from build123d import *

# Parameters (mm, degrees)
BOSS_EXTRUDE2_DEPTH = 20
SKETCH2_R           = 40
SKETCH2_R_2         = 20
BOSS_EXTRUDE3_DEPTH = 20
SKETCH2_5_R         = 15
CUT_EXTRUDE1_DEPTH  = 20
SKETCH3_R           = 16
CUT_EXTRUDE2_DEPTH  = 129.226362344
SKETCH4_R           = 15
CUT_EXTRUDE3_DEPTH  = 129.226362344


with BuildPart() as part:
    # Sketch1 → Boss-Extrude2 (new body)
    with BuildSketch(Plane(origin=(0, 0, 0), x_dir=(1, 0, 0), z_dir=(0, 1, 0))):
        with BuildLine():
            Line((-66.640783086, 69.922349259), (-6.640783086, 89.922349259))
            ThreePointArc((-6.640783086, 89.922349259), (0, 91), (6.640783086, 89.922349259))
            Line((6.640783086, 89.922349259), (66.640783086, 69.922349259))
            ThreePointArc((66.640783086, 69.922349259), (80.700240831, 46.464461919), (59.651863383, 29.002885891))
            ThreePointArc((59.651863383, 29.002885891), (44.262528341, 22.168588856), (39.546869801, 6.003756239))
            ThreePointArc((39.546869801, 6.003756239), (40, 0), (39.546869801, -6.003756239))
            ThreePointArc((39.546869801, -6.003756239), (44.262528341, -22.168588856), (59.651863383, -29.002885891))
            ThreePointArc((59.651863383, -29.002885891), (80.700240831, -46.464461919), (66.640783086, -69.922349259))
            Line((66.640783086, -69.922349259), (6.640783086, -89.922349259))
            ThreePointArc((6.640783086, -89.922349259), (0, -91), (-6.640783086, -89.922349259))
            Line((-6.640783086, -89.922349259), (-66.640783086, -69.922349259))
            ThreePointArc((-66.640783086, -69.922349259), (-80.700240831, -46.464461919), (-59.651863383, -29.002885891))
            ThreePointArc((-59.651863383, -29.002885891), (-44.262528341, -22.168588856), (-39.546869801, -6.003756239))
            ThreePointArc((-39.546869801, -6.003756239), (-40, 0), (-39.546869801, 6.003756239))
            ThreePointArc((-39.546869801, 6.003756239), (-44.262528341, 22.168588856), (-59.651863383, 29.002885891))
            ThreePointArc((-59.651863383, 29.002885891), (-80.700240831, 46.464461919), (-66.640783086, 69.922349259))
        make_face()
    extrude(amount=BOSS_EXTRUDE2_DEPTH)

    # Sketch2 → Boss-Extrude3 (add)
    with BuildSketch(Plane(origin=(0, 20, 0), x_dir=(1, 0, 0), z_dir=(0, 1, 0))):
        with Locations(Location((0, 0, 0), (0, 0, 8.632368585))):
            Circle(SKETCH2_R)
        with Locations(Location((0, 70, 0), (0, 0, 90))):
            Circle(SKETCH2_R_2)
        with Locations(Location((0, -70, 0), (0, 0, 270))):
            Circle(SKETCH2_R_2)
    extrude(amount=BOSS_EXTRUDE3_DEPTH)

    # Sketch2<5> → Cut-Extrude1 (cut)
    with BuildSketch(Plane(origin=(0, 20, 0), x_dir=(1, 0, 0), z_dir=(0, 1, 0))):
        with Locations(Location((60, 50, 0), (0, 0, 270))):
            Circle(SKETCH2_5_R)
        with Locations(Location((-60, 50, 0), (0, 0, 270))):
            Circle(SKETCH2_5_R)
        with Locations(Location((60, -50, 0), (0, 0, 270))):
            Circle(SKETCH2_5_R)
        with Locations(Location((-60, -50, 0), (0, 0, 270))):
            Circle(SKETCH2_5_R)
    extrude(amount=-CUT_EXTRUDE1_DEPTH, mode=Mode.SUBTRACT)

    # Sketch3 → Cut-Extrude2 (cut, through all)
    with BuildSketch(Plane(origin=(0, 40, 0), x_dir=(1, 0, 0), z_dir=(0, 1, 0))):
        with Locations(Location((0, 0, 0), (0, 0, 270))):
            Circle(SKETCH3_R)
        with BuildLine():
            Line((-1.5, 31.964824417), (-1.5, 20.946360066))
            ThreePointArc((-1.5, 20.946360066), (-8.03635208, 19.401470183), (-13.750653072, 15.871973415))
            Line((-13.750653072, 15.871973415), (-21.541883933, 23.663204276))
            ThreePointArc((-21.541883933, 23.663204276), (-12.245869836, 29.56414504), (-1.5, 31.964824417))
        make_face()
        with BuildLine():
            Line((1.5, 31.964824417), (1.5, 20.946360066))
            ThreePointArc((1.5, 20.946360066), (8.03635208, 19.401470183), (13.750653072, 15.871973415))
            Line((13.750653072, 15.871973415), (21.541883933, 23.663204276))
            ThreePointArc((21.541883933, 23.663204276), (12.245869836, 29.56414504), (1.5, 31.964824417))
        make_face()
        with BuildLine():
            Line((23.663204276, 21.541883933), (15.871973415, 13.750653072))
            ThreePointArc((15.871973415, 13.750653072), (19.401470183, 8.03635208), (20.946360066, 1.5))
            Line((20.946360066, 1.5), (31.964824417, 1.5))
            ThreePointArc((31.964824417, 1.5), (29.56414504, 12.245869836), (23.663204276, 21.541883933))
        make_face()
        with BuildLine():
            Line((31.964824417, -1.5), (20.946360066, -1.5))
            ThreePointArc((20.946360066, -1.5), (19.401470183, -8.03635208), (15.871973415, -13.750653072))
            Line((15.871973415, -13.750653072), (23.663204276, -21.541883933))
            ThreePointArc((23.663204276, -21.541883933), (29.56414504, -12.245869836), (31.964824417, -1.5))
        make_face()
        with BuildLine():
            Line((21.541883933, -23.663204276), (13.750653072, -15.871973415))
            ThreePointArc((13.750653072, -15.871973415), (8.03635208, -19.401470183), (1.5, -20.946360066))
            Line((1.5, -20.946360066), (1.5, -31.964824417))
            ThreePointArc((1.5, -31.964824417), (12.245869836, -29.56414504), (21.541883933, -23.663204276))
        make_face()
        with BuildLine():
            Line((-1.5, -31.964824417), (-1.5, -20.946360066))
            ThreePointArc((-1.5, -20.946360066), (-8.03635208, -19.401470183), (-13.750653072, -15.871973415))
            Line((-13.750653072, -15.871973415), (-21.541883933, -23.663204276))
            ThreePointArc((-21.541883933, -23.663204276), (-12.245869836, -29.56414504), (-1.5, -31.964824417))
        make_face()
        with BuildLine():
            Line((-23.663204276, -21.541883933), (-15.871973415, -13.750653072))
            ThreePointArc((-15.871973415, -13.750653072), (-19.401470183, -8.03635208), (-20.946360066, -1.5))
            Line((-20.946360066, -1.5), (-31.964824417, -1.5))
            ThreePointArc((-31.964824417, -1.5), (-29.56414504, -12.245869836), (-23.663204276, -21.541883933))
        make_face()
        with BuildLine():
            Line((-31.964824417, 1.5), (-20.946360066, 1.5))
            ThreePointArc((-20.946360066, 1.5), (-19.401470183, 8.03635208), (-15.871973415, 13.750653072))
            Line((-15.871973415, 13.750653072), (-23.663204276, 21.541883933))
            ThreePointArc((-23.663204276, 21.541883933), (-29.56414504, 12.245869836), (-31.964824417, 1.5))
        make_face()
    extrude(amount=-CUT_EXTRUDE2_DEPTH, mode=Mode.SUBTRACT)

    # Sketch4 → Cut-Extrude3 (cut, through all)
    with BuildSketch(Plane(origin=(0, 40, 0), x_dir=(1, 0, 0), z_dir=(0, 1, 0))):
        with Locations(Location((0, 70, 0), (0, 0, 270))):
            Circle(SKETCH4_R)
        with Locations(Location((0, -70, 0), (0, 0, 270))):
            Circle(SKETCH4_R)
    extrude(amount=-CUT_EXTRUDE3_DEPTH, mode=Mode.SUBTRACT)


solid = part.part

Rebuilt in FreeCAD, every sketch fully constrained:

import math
import FreeCAD as App
import Part
import Sketcher

doc = App.newDocument("Part")
body = doc.addObject("PartDesign::Body", "Body")

sketch1 = body.newObject("Sketcher::SketchObject", "Sketch")
sketch1.AttachmentSupport = (doc.getObject("XZ_Plane"), [""])
sketch1.MapMode = "FlatFace"
sketch1.addGeometry([
    Part.LineSegment(App.Vector(-6.640783, -89.922349, 0), App.Vector(-66.640783, -69.922349, 0)),
    Part.ArcOfCircle(Part.Circle(App.Vector(-60, -50, 0), App.Vector(0, 0, 1), 21), math.radians(89.050111), math.radians(251.565051)),
    Part.ArcOfCircle(Part.Circle(App.Vector(-59.320305, -9.005634, 0), App.Vector(0, 0, 1), 20), math.radians(-90.949889), math.radians(8.632369)),
    Part.ArcOfCircle(Part.Circle(App.Vector(0, 0, 0), App.Vector(0, 0, 1), 40), math.radians(171.367631), math.radians(188.632369)),
    Part.ArcOfCircle(Part.Circle(App.Vector(-59.320305, 9.005634, 0), App.Vector(0, 0, 1), 20), math.radians(-8.632369), math.radians(90.949889)),
    Part.ArcOfCircle(Part.Circle(App.Vector(-60, 50, 0), App.Vector(0, 0, 1), 21), math.radians(108.434949), math.radians(270.949889)),
    Part.LineSegment(App.Vector(-66.640783, 69.922349, 0), App.Vector(-6.640783, 89.922349, 0)),
    Part.ArcOfCircle(Part.Circle(App.Vector(0, 70, 0), App.Vector(0, 0, 1), 21), math.radians(71.565051), math.radians(108.434949)),
    Part.LineSegment(App.Vector(6.640783, 89.922349, 0), App.Vector(66.640783, 69.922349, 0)),
    Part.ArcOfCircle(Part.Circle(App.Vector(60, 50, 0), App.Vector(0, 0, 1), 21), math.radians(-90.949889), math.radians(71.565051)),
    Part.ArcOfCircle(Part.Circle(App.Vector(59.320305, 9.005634, 0), App.Vector(0, 0, 1), 20), math.radians(89.050111), math.radians(188.632369)),
    Part.ArcOfCircle(Part.Circle(App.Vector(0, 0, 0), App.Vector(0, 0, 1), 40), math.radians(-8.632369), math.radians(8.632369)),
    Part.ArcOfCircle(Part.Circle(App.Vector(59.320305, -9.005634, 0), App.Vector(0, 0, 1), 20), math.radians(171.367631), math.radians(270.949889)),
    Part.ArcOfCircle(Part.Circle(App.Vector(60, -50, 0), App.Vector(0, 0, 1), 21), math.radians(-71.565051), math.radians(90.949889)),
    Part.LineSegment(App.Vector(66.640783, -69.922349, 0), App.Vector(6.640783, -89.922349, 0)),
    Part.ArcOfCircle(Part.Circle(App.Vector(0, -70, 0), App.Vector(0, 0, 1), 21), math.radians(-108.434949), math.radians(-71.565051)),
], False)
sketch1.addConstraint([
    Sketcher.Constraint("Tangent", 0, 2, 1, 2),
    Sketcher.Constraint("Tangent", 1, 1, 2, 1),
    Sketcher.Constraint("Tangent", 2, 2, 3, 2),
    Sketcher.Constraint("Tangent", 3, 1, 4, 1),
    Sketcher.Constraint("Tangent", 4, 2, 5, 2),
    Sketcher.Constraint("Tangent", 5, 1, 6, 1),
    Sketcher.Constraint("Tangent", 6, 2, 7, 2),
    Sketcher.Constraint("Tangent", 7, 1, 8, 1),
    Sketcher.Constraint("Tangent", 8, 2, 9, 2),
    Sketcher.Constraint("Tangent", 9, 1, 10, 1),
    Sketcher.Constraint("Tangent", 10, 2, 11, 2),
    Sketcher.Constraint("Tangent", 11, 1, 12, 1),
    Sketcher.Constraint("Tangent", 12, 2, 13, 2),
    Sketcher.Constraint("Tangent", 13, 1, 14, 1),
    Sketcher.Constraint("Tangent", 14, 2, 15, 2),
    Sketcher.Constraint("Tangent", 15, 1, 0, 1),
    Sketcher.Constraint("Coincident", 3, 3, -1, 1),
    Sketcher.Constraint("Coincident", 11, 3, -1, 1),
    Sketcher.Constraint("Equal", 2, 4),
    Sketcher.Constraint("Equal", 1, 5),
    Sketcher.Constraint("Equal", 5, 7),
    Sketcher.Constraint("Equal", 7, 9),
    Sketcher.Constraint("Equal", 4, 10),
    Sketcher.Constraint("Equal", 3, 11),
    Sketcher.Constraint("Equal", 10, 12),
    Sketcher.Constraint("Equal", 9, 13),
    Sketcher.Constraint("Equal", 13, 15),
    Sketcher.Constraint("Symmetric", 1, 3, 9, 3, -1, 1),
    Sketcher.Constraint("Symmetric", 5, 3, 13, 3, -1, 1),
    Sketcher.Constraint("Symmetric", 7, 3, 15, 3, -1, 1),
    Sketcher.Constraint("Symmetric", 5, 3, 9, 3, -2),
    Sketcher.Constraint("PointOnObject", 7, 3, -2),
    Sketcher.Constraint("Radius", 1, 21.0),
    Sketcher.Constraint("Radius", 2, 20.0),
    Sketcher.Constraint("Radius", 3, 40.0),
    Sketcher.Constraint("DistanceX", 1, 3, -1, 1, 60.0),
    Sketcher.Constraint("DistanceY", 1, 3, -1, 1, 50.0),
    Sketcher.Constraint("DistanceY", -1, 1, 7, 3, 70.0),
])
pad1 = body.newObject("PartDesign::Pad", "Pad")
pad1.Profile = sketch1
pad1.Length = 20
pad1.Reversed = True

sketch2 = body.newObject("Sketcher::SketchObject", "Sketch001")
sketch2.AttachmentSupport = (doc.getObject("XZ_Plane"), [""])
sketch2.MapMode = "FlatFace"
sketch2.AttachmentOffset = App.Placement(App.Vector(0, 0, -20), App.Rotation())
sketch2.addGeometry([
    Part.Circle(App.Vector(0, 0, 0), App.Vector(0, 0, 1), 40),
    Part.Circle(App.Vector(0, -70, 0), App.Vector(0, 0, 1), 20),
    Part.Circle(App.Vector(0, 70, 0), App.Vector(0, 0, 1), 20),
], False)
sketch2.addConstraint([
    Sketcher.Constraint("Coincident", 0, 3, -1, 1),
    Sketcher.Constraint("Equal", 1, 2),
    Sketcher.Constraint("Symmetric", 1, 3, 2, 3, -1, 1),
    Sketcher.Constraint("PointOnObject", 1, 3, -2),
    Sketcher.Constraint("Diameter", 0, 80.0),
    Sketcher.Constraint("Diameter", 1, 40.0),
    Sketcher.Constraint("DistanceY", 1, 3, -1, 1, 70.0),
])
pad2 = body.newObject("PartDesign::Pad", "Pad001")
pad2.Profile = sketch2
pad2.Length = 20
pad2.Reversed = True

sketch3 = body.newObject("Sketcher::SketchObject", "Sketch002")
sketch3.AttachmentSupport = (doc.getObject("XZ_Plane"), [""])
sketch3.MapMode = "FlatFace"
sketch3.AttachmentOffset = App.Placement(App.Vector(0, 0, -20), App.Rotation())
sketch3.addGeometry([
    Part.Circle(App.Vector(60, -50, 0), App.Vector(0, 0, 1), 15),
    Part.Circle(App.Vector(-60, -50, 0), App.Vector(0, 0, 1), 15),
    Part.Circle(App.Vector(60, 50, 0), App.Vector(0, 0, 1), 15),
    Part.Circle(App.Vector(-60, 50, 0), App.Vector(0, 0, 1), 15),
], False)
sketch3.addConstraint([
    Sketcher.Constraint("Equal", 0, 1),
    Sketcher.Constraint("Equal", 1, 2),
    Sketcher.Constraint("Equal", 2, 3),
    Sketcher.Constraint("Symmetric", 1, 3, 2, 3, -1, 1),
    Sketcher.Constraint("Symmetric", 0, 3, 3, 3, -1, 1),
    Sketcher.Constraint("Symmetric", 0, 3, 1, 3, -2),
    Sketcher.Constraint("Diameter", 0, 30.0),
    Sketcher.Constraint("DistanceX", -1, 1, 0, 3, 60.0),
    Sketcher.Constraint("DistanceY", 0, 3, -1, 1, 50.0),
])
pocket1 = body.newObject("PartDesign::Pocket", "Pocket")
pocket1.Profile = sketch3
pocket1.Length = 20
pocket1.Reversed = True

sketch4 = body.newObject("Sketcher::SketchObject", "Sketch003")
sketch4.AttachmentSupport = (doc.getObject("XZ_Plane"), [""])
sketch4.MapMode = "FlatFace"
sketch4.AttachmentOffset = App.Placement(App.Vector(0, 0, -40), App.Rotation())
sketch4.addGeometry([
    Part.Circle(App.Vector(0, 0, 0), App.Vector(0, 0, 1), 16),
    Part.LineSegment(App.Vector(-1.5, -20.94636, 0), App.Vector(-1.5, -31.964824, 0)),
    Part.ArcOfCircle(Part.Circle(App.Vector(0, 0, 0), App.Vector(0, 0, 1), 32), math.radians(-132.313276), math.radians(-92.686724)),
    Part.LineSegment(App.Vector(-21.541884, -23.663204, 0), App.Vector(-13.750653, -15.871973, 0)),
    Part.ArcOfCircle(Part.Circle(App.Vector(0, 0, 0), App.Vector(0, 0, 1), 21), math.radians(-130.903956), math.radians(-94.096044)),
    Part.LineSegment(App.Vector(1.5, -31.964824, 0), App.Vector(1.5, -20.94636, 0)),
    Part.ArcOfCircle(Part.Circle(App.Vector(0, 0, 0), App.Vector(0, 0, 1), 21), math.radians(-85.903956), math.radians(-49.096044)),
    Part.LineSegment(App.Vector(13.750653, -15.871973, 0), App.Vector(21.541884, -23.663204, 0)),
    Part.ArcOfCircle(Part.Circle(App.Vector(0, 0, 0), App.Vector(0, 0, 1), 32), math.radians(-87.313276), math.radians(-47.686724)),
    Part.LineSegment(App.Vector(23.663204, -21.541884, 0), App.Vector(15.871973, -13.750653, 0)),
    Part.ArcOfCircle(Part.Circle(App.Vector(0, 0, 0), App.Vector(0, 0, 1), 21), math.radians(-40.903956), math.radians(-4.096044)),
    Part.LineSegment(App.Vector(20.94636, -1.5, 0), App.Vector(31.964824, -1.5, 0)),
    Part.ArcOfCircle(Part.Circle(App.Vector(0, 0, 0), App.Vector(0, 0, 1), 32), math.radians(-42.313276), math.radians(-2.686724)),
    Part.LineSegment(App.Vector(31.964824, 1.5, 0), App.Vector(20.94636, 1.5, 0)),
    Part.ArcOfCircle(Part.Circle(App.Vector(0, 0, 0), App.Vector(0, 0, 1), 21), math.radians(4.096044), math.radians(40.903956)),
    Part.LineSegment(App.Vector(15.871973, 13.750653, 0), App.Vector(23.663204, 21.541884, 0)),
    Part.ArcOfCircle(Part.Circle(App.Vector(0, 0, 0), App.Vector(0, 0, 1), 32), math.radians(2.686724), math.radians(42.313276)),
    Part.LineSegment(App.Vector(21.541884, 23.663204, 0), App.Vector(13.750653, 15.871973, 0)),
    Part.ArcOfCircle(Part.Circle(App.Vector(0, 0, 0), App.Vector(0, 0, 1), 21), math.radians(49.096044), math.radians(85.903956)),
    Part.LineSegment(App.Vector(1.5, 20.94636, 0), App.Vector(1.5, 31.964824, 0)),
    Part.ArcOfCircle(Part.Circle(App.Vector(0, 0, 0), App.Vector(0, 0, 1), 32), math.radians(47.686724), math.radians(87.313276)),
    Part.LineSegment(App.Vector(-1.5, 31.964824, 0), App.Vector(-1.5, 20.94636, 0)),
    Part.ArcOfCircle(Part.Circle(App.Vector(0, 0, 0), App.Vector(0, 0, 1), 21), math.radians(94.096044), math.radians(130.903956)),
    Part.LineSegment(App.Vector(-13.750653, 15.871973, 0), App.Vector(-21.541884, 23.663204, 0)),
    Part.ArcOfCircle(Part.Circle(App.Vector(0, 0, 0), App.Vector(0, 0, 1), 32), math.radians(92.686724), math.radians(132.313276)),
    Part.LineSegment(App.Vector(-23.663204, 21.541884, 0), App.Vector(-15.871973, 13.750653, 0)),
    Part.ArcOfCircle(Part.Circle(App.Vector(0, 0, 0), App.Vector(0, 0, 1), 21), math.radians(139.096044), math.radians(175.903956)),
    Part.LineSegment(App.Vector(-20.94636, 1.5, 0), App.Vector(-31.964824, 1.5, 0)),
    Part.ArcOfCircle(Part.Circle(App.Vector(0, 0, 0), App.Vector(0, 0, 1), 32), math.radians(137.686724), math.radians(177.313276)),
    Part.LineSegment(App.Vector(-31.964824, -1.5, 0), App.Vector(-20.94636, -1.5, 0)),
    Part.ArcOfCircle(Part.Circle(App.Vector(0, 0, 0), App.Vector(0, 0, 1), 21), math.radians(-175.903956), math.radians(-139.096044)),
    Part.LineSegment(App.Vector(-15.871973, -13.750653, 0), App.Vector(-23.663204, -21.541884, 0)),
    Part.ArcOfCircle(Part.Circle(App.Vector(0, 0, 0), App.Vector(0, 0, 1), 32), math.radians(-177.313276), math.radians(-137.686724)),
], False)
sketch4.addConstraint([
    Sketcher.Constraint("Coincident", 1, 2, 2, 2),
    Sketcher.Constraint("Coincident", 2, 1, 3, 1),
    Sketcher.Constraint("Coincident", 3, 2, 4, 1),
    Sketcher.Constraint("Coincident", 4, 2, 1, 1),
    Sketcher.Constraint("Coincident", 5, 2, 6, 1),
    Sketcher.Constraint("Coincident", 6, 2, 7, 1),
    Sketcher.Constraint("Coincident", 7, 2, 8, 2),
    Sketcher.Constraint("Coincident", 8, 1, 5, 1),
    Sketcher.Constraint("Coincident", 9, 2, 10, 1),
    Sketcher.Constraint("Coincident", 10, 2, 11, 1),
    Sketcher.Constraint("Coincident", 11, 2, 12, 2),
    Sketcher.Constraint("Coincident", 12, 1, 9, 1),
    Sketcher.Constraint("Coincident", 13, 2, 14, 1),
    Sketcher.Constraint("Coincident", 14, 2, 15, 1),
    Sketcher.Constraint("Coincident", 15, 2, 16, 2),
    Sketcher.Constraint("Coincident", 16, 1, 13, 1),
    Sketcher.Constraint("Coincident", 17, 2, 18, 1),
    Sketcher.Constraint("Coincident", 18, 2, 19, 1),
    Sketcher.Constraint("Coincident", 19, 2, 20, 2),
    Sketcher.Constraint("Coincident", 20, 1, 17, 1),
    Sketcher.Constraint("Coincident", 21, 2, 22, 1),
    Sketcher.Constraint("Coincident", 22, 2, 23, 1),
    Sketcher.Constraint("Coincident", 23, 2, 24, 2),
    Sketcher.Constraint("Coincident", 24, 1, 21, 1),
    Sketcher.Constraint("Coincident", 25, 2, 26, 1),
    Sketcher.Constraint("Coincident", 26, 2, 27, 1),
    Sketcher.Constraint("Coincident", 27, 2, 28, 2),
    Sketcher.Constraint("Coincident", 28, 1, 25, 1),
    Sketcher.Constraint("Coincident", 29, 2, 30, 1),
    Sketcher.Constraint("Coincident", 30, 2, 31, 1),
    Sketcher.Constraint("Coincident", 31, 2, 32, 2),
    Sketcher.Constraint("Coincident", 32, 1, 29, 1),
    Sketcher.Constraint("Vertical", 1),
    Sketcher.Constraint("Vertical", 5),
    Sketcher.Constraint("Horizontal", 11),
    Sketcher.Constraint("Horizontal", 13),
    Sketcher.Constraint("Vertical", 19),
    Sketcher.Constraint("Vertical", 21),
    Sketcher.Constraint("Horizontal", 27),
    Sketcher.Constraint("Horizontal", 29),
    Sketcher.Constraint("Coincident", 0, 3, -1, 1),
    Sketcher.Constraint("Coincident", 2, 3, -1, 1),
    Sketcher.Constraint("Coincident", 4, 3, -1, 1),
    Sketcher.Constraint("Coincident", 6, 3, -1, 1),
    Sketcher.Constraint("Coincident", 8, 3, -1, 1),
    Sketcher.Constraint("Coincident", 10, 3, -1, 1),
    Sketcher.Constraint("Coincident", 12, 3, -1, 1),
    Sketcher.Constraint("Coincident", 14, 3, -1, 1),
    Sketcher.Constraint("Coincident", 16, 3, -1, 1),
    Sketcher.Constraint("Coincident", 18, 3, -1, 1),
    Sketcher.Constraint("Coincident", 20, 3, -1, 1),
    Sketcher.Constraint("Coincident", 22, 3, -1, 1),
    Sketcher.Constraint("Coincident", 24, 3, -1, 1),
    Sketcher.Constraint("Coincident", 26, 3, -1, 1),
    Sketcher.Constraint("Coincident", 28, 3, -1, 1),
    Sketcher.Constraint("Coincident", 30, 3, -1, 1),
    Sketcher.Constraint("Coincident", 32, 3, -1, 1),
    Sketcher.Constraint("Equal", 4, 6),
    Sketcher.Constraint("Equal", 2, 8),
    Sketcher.Constraint("Equal", 6, 10),
    Sketcher.Constraint("Equal", 8, 12),
    Sketcher.Constraint("Equal", 10, 14),
    Sketcher.Constraint("Equal", 12, 16),
    Sketcher.Constraint("Equal", 14, 18),
    Sketcher.Constraint("Equal", 16, 20),
    Sketcher.Constraint("Equal", 18, 22),
    Sketcher.Constraint("Equal", 20, 24),
    Sketcher.Constraint("Equal", 22, 26),
    Sketcher.Constraint("Equal", 24, 28),
    Sketcher.Constraint("Equal", 26, 30),
    Sketcher.Constraint("Equal", 28, 32),
    Sketcher.Constraint("Perpendicular", 3, 7),
    Sketcher.Constraint("Parallel", 7, 9),
    Sketcher.Constraint("Perpendicular", 9, 15),
    Sketcher.Constraint("Parallel", 15, 17),
    Sketcher.Constraint("Perpendicular", 17, 23),
    Sketcher.Constraint("Parallel", 23, 25),
    Sketcher.Constraint("Perpendicular", 25, 31),
    Sketcher.Constraint("Horizontal", 4, 2, 5, 2),
    Sketcher.Constraint("Horizontal", 3, 2, 6, 2),
    Sketcher.Constraint("Horizontal", 2, 1, 7, 2),
    Sketcher.Constraint("Horizontal", 18, 2, 21, 2),
    Sketcher.Constraint("Horizontal", 17, 2, 22, 2),
    Sketcher.Constraint("Horizontal", 14, 2, 25, 2),
    Sketcher.Constraint("Horizontal", 16, 1, 26, 2),
    Sketcher.Constraint("Horizontal", 11, 2, 29, 2),
    Sketcher.Constraint("Horizontal", 9, 2, 30, 2),
    Sketcher.Constraint("Vertical", 10, 2, 13, 2),
    Sketcher.Constraint("Vertical", 9, 2, 14, 2),
    Sketcher.Constraint("Vertical", 6, 2, 17, 2),
    Sketcher.Constraint("Vertical", 8, 1, 18, 2),
    Sketcher.Constraint("Equal", 29, 1),
    Sketcher.Constraint("Equal", 7, 9),
    Sketcher.Constraint("Diameter", 0, 32.0),
    Sketcher.Constraint("Radius", 2, 32.0),
    Sketcher.Constraint("Radius", 4, 21.0),
    Sketcher.Constraint("DistanceX", 4, 2, 5, 2, 3.0),
    Sketcher.Constraint("DistanceY", 1, 2, 2, 1, 8.30162),
])
pocket2 = body.newObject("PartDesign::Pocket", "Pocket001")
pocket2.Profile = sketch4
pocket2.Type = "ThroughAll"
pocket2.Reversed = True

sketch5 = body.newObject("Sketcher::SketchObject", "Sketch004")
sketch5.AttachmentSupport = (doc.getObject("XZ_Plane"), [""])
sketch5.MapMode = "FlatFace"
sketch5.AttachmentOffset = App.Placement(App.Vector(0, 0, -40), App.Rotation())
sketch5.addGeometry([
    Part.Circle(App.Vector(0, -70, 0), App.Vector(0, 0, 1), 15),
    Part.Circle(App.Vector(0, 70, 0), App.Vector(0, 0, 1), 15),
], False)
sketch5.addConstraint([
    Sketcher.Constraint("Equal", 0, 1),
    Sketcher.Constraint("Symmetric", 0, 3, 1, 3, -1, 1),
    Sketcher.Constraint("PointOnObject", 0, 3, -2),
    Sketcher.Constraint("Diameter", 0, 30.0),
    Sketcher.Constraint("DistanceY", 0, 3, -1, 1, 70.0),
])
pocket3 = body.newObject("PartDesign::Pocket", "Pocket002")
pocket3.Profile = sketch5
pocket3.Type = "ThroughAll"
pocket3.Reversed = True

doc.recompute()
